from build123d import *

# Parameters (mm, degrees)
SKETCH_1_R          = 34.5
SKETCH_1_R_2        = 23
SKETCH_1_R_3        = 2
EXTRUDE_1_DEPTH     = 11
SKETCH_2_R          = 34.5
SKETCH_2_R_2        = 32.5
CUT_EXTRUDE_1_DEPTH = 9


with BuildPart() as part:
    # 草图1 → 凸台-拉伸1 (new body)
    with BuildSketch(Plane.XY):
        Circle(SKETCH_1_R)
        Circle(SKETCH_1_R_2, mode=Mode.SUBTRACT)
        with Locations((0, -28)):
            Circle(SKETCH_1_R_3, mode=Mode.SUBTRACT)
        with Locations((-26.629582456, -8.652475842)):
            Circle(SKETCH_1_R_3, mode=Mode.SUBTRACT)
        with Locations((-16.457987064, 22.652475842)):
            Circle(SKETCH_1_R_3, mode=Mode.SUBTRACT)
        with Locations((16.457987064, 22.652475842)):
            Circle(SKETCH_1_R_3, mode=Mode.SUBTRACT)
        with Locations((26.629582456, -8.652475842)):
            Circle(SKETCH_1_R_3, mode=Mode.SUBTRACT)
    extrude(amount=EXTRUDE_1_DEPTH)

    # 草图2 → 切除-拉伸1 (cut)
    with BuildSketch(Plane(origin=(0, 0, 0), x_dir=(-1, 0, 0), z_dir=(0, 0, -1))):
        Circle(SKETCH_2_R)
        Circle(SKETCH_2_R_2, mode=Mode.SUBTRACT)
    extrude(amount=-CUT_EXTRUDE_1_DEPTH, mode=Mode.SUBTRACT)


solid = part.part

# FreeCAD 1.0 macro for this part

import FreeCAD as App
import Part
import Sketcher
from FreeCAD import Vector

doc = App.newDocument("Part")
body = doc.addObject("PartDesign::Body", "Body")

sketch1 = doc.addObject("Sketcher::SketchObject", "Sketch")
body.addObject(sketch1)
sketch1.AttachmentSupport = (doc.XY_Plane, [""])
sketch1.MapMode = "FlatFace"
sketch1.addGeometry(Part.Circle(Vector(0, 0, 0), Vector(0, 0, 1), 34.5), False)
sketch1.addGeometry(Part.Circle(Vector(0, -28, 0), Vector(0, 0, 1), 2), False)
sketch1.addGeometry(Part.Circle(Vector(-26.629582, -8.652476, 0), Vector(0, 0, 1), 2), False)
sketch1.addGeometry(Part.Circle(Vector(26.629582, -8.652476, 0), Vector(0, 0, 1), 2), False)
sketch1.addGeometry(Part.Circle(Vector(0, 0, 0), Vector(0, 0, 1), 23), False)
sketch1.addGeometry(Part.Circle(Vector(-16.457987, 22.652476, 0), Vector(0, 0, 1), 2), False)
sketch1.addGeometry(Part.Circle(Vector(16.457987, 22.652476, 0), Vector(0, 0, 1), 2), False)
sketch1.addConstraint(Sketcher.Constraint("Coincident", 0, 3, -1, 1))
sketch1.addConstraint(Sketcher.Constraint("Coincident", 4, 3, -1, 1))
sketch1.addConstraint(Sketcher.Constraint("Equal", 1, 2))
sketch1.addConstraint(Sketcher.Constraint("Equal", 2, 3))
sketch1.addConstraint(Sketcher.Constraint("Equal", 3, 5))
sketch1.addConstraint(Sketcher.Constraint("Equal", 5, 6))
sketch1.addConstraint(Sketcher.Constraint("Symmetric", 2, 3, 3, 3, -2))
sketch1.addConstraint(Sketcher.Constraint("Symmetric", 5, 3, 6, 3, -2))
sketch1.addConstraint(Sketcher.Constraint("PointOnObject", 1, 3, -2))
sketch1.addConstraint(Sketcher.Constraint("Diameter", 0, 69.0))
sketch1.addConstraint(Sketcher.Constraint("Diameter", 1, 4.0))
sketch1.addConstraint(Sketcher.Constraint("Diameter", 4, 46.0))
sketch1.addConstraint(Sketcher.Constraint("DistanceY", 1, 3, -1, 1, 28.0))
sketch1.addConstraint(Sketcher.Constraint("DistanceY", 2, 3, 5, 3, 31.304952))
sketch1.addConstraint(Sketcher.Constraint("DistanceX", 5, 3, 3, 3, 43.08757))
sketch1.addConstraint(Sketcher.Constraint("DistanceX", 2, 3, -1, 1, 26.629582))
sketch1.addConstraint(Sketcher.Constraint("DistanceY", 2, 3, -1, 1, 8.652476))
pad1 = doc.addObject("PartDesign::Pad", "Pad")
body.addObject(pad1)
pad1.Profile = sketch1
pad1.Length = 11

sketch2 = doc.addObject("Sketcher::SketchObject", "Sketch001")
body.addObject(sketch2)
sketch2.AttachmentSupport = (doc.XY_Plane, [""])
sketch2.MapMode = "FlatFace"
sketch2.addGeometry(Part.Circle(Vector(0, 0, 0), Vector(0, 0, 1), 34.5), False)
sketch2.addGeometry(Part.Circle(Vector(0, 0, 0), Vector(0, 0, 1), 32.5), False)
sketch2.addConstraint(Sketcher.Constraint("Coincident", 0, 3, -1, 1))
sketch2.addConstraint(Sketcher.Constraint("Coincident", 1, 3, -1, 1))
sketch2.addConstraint(Sketcher.Constraint("Diameter", 0, 69.0))
sketch2.addConstraint(Sketcher.Constraint("Diameter", 1, 65.0))
pocket1 = doc.addObject("PartDesign::Pocket", "Pocket")
body.addObject(pocket1)
pocket1.Profile = sketch2
pocket1.Length = 9
pocket1.Reversed = True

doc.recompute()
